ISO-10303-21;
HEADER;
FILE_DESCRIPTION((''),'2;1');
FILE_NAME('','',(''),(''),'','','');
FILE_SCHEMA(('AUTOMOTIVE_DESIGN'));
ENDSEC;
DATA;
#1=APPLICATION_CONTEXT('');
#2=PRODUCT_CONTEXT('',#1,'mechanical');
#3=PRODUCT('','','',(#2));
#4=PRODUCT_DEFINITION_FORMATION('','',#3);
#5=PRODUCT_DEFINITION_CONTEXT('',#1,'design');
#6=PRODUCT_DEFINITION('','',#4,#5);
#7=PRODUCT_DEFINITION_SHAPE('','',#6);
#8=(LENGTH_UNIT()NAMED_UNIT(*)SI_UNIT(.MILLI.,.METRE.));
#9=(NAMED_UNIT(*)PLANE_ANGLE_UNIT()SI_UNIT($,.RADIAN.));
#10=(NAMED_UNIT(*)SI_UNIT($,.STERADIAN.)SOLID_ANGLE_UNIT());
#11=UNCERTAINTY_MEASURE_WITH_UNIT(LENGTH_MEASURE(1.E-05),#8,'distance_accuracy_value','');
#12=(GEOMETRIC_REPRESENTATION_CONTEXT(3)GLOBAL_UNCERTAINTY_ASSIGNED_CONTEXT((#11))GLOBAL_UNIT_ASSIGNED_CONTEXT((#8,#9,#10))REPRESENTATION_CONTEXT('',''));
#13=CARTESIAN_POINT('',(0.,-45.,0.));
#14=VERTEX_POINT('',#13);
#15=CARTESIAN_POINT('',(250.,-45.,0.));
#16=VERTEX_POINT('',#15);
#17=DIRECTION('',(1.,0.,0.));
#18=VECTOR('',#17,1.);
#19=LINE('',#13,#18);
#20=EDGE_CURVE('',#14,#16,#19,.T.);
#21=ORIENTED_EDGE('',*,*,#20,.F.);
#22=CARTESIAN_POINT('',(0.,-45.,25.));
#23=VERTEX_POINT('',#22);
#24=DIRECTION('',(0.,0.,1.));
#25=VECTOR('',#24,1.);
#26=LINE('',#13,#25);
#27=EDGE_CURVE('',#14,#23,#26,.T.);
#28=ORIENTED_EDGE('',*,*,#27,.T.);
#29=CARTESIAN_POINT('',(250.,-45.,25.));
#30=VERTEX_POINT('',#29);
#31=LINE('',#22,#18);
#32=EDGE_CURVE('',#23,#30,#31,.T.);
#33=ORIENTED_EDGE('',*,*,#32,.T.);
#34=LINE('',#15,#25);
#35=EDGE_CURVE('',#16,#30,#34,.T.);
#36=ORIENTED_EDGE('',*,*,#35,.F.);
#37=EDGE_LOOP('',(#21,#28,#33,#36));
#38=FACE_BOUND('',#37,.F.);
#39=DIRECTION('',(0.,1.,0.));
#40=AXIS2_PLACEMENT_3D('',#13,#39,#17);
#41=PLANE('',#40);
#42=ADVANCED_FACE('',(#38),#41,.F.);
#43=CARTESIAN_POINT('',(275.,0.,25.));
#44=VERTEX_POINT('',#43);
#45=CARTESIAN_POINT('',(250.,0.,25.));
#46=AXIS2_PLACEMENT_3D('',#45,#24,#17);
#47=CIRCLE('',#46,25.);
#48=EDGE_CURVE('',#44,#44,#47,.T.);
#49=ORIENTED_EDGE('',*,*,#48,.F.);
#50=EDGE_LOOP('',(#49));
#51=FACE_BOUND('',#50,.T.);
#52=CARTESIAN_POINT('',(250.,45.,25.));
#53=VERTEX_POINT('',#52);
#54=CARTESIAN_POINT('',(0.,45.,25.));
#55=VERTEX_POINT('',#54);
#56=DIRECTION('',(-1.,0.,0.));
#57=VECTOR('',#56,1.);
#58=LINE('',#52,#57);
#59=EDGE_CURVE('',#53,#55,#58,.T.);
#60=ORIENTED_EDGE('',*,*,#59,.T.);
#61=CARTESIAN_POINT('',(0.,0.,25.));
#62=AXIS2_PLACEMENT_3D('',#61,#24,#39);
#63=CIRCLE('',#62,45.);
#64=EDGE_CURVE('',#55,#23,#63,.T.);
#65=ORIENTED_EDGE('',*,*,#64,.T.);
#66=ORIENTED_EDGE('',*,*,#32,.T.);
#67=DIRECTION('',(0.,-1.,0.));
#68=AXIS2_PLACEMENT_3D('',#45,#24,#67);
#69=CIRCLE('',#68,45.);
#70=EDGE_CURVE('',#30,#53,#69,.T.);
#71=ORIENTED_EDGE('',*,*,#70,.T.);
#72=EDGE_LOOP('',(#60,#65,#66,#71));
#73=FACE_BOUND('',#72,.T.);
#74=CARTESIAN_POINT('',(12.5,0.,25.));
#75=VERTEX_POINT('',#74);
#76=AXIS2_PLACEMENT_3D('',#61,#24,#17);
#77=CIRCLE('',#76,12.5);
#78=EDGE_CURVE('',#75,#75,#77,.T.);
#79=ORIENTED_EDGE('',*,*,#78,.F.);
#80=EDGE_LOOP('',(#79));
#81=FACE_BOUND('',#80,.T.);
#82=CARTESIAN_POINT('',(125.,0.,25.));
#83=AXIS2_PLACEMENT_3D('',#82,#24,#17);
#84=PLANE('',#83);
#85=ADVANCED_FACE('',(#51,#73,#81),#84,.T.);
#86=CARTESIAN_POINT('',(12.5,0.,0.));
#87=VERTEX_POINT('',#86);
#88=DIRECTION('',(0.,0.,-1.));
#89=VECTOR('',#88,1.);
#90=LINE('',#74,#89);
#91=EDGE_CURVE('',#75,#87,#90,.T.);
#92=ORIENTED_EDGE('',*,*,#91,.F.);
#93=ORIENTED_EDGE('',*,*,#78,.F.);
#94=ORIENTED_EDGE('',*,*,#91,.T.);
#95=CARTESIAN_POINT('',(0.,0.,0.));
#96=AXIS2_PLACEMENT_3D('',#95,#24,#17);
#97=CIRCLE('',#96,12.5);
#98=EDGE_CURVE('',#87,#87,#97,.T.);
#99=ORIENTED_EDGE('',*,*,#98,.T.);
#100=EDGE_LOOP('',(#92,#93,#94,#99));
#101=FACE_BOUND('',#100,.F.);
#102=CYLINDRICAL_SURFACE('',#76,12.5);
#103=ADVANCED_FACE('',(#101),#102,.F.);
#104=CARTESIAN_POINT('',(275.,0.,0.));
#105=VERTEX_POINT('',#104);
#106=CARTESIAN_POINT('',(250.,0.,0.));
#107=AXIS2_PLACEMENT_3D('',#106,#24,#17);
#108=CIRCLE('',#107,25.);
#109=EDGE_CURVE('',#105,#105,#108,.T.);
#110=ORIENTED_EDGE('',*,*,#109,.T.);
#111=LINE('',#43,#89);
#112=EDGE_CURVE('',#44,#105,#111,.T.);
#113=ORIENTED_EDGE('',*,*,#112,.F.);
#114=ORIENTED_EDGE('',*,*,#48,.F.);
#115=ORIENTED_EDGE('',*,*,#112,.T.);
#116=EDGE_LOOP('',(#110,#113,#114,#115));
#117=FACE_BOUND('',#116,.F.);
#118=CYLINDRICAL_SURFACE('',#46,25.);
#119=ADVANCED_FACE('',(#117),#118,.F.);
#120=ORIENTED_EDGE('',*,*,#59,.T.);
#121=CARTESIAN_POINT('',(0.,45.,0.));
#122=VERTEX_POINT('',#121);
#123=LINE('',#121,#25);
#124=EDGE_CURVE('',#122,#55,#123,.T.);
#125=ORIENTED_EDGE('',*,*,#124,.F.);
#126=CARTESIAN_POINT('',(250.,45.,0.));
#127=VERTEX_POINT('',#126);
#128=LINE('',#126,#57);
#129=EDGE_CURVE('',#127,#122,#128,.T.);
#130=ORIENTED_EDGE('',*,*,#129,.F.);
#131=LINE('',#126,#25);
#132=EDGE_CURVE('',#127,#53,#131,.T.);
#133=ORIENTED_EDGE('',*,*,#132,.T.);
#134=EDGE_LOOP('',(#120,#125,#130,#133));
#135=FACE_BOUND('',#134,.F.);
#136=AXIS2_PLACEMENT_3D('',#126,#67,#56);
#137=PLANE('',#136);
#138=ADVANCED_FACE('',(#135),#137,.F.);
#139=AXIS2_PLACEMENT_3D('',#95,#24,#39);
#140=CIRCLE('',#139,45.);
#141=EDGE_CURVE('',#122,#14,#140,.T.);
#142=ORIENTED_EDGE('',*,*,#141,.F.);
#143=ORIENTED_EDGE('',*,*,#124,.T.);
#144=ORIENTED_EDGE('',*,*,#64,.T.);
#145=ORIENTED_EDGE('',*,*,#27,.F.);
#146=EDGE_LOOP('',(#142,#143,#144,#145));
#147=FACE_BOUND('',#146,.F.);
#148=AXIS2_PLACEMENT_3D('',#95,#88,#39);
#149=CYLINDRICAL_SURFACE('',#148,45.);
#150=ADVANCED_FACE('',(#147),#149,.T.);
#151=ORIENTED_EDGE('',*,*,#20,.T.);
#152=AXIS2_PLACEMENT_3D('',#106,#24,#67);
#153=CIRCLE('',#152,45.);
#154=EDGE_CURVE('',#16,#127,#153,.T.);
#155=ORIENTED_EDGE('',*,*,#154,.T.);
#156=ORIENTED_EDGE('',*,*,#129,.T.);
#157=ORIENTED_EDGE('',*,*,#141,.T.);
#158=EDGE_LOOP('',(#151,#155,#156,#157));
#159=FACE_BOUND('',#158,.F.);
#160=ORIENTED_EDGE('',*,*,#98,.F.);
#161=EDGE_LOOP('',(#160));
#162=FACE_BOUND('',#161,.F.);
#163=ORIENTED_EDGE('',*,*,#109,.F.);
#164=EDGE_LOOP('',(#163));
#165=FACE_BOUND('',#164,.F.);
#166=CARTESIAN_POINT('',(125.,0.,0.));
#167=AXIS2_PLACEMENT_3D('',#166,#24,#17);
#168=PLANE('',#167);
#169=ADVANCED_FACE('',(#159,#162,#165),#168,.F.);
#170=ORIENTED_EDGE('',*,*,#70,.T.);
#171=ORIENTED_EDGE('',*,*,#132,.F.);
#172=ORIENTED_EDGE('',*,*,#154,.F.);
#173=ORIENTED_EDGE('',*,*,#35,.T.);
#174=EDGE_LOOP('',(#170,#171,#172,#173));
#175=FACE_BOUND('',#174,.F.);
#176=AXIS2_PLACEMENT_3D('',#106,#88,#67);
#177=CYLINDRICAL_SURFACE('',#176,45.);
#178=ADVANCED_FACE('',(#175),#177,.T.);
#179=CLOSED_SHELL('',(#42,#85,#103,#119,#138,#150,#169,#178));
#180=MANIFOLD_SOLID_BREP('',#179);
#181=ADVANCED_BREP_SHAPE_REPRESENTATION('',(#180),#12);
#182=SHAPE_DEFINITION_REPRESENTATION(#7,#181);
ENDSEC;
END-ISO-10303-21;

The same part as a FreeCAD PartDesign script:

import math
import FreeCAD as App
import Part
import Sketcher
Q = App.Units.Quantity

doc = App.newDocument("Part")
body = doc.addObject("PartDesign::Body", "Body")

# Sketch on XY plane
sketch1 = body.newObject("Sketcher::SketchObject", "Sketch")
sketch1.AttachmentSupport = (doc.getObject("XY_Plane"), [""])
sketch1.MapMode = "FlatFace"
sketch1.addGeometry(Part.LineSegment(App.Vector(250, 45, 0), App.Vector(0, 45, 0)), False)
sketch1.addGeometry(Part.ArcOfCircle(Part.Circle(App.Vector(0, 0, 0), App.Vector(0, 0, 1), 45), math.radians(90), math.radians(270)), False)
sketch1.addGeometry(Part.LineSegment(App.Vector(0, -45, 0), App.Vector(250, -45, 0)), False)
sketch1.addGeometry(Part.ArcOfCircle(Part.Circle(App.Vector(250, 0, 0), App.Vector(0, 0, 1), 45), math.radians(-90), math.radians(90)), False)
sketch1.addConstraint(Sketcher.Constraint("Tangent", 0, 2, 1, 1))
sketch1.addConstraint(Sketcher.Constraint("Tangent", 1, 2, 2, 1))
sketch1.addConstraint(Sketcher.Constraint("Tangent", 2, 2, 3, 1))
sketch1.addConstraint(Sketcher.Constraint("Tangent", 3, 2, 0, 1))
sketch1.addConstraint(Sketcher.Constraint("Horizontal", 0))
sketch1.addConstraint(Sketcher.Constraint("Horizontal", 2))
sketch1.addConstraint(Sketcher.Constraint("Coincident", 1, 3, -1, 1))
sketch1.addConstraint(Sketcher.Constraint("Radius", 1, Q("45 mm")))
sketch1.addConstraint(Sketcher.Constraint("DistanceX", 0, 2, 0, 1, Q("250 mm")))
pad1 = body.newObject("PartDesign::Pad", "Pad")
pad1.Profile = sketch1
pad1.Length = 25

# Sketch on XY plane
sketch2 = body.newObject("Sketcher::SketchObject", "Sketch001")
sketch2.AttachmentSupport = (doc.getObject("XY_Plane"), [""])
sketch2.MapMode = "FlatFace"
sketch2.AttachmentOffset = App.Placement(App.Vector(0, 0, 25), App.Rotation())
sketch2.addGeometry(Part.Circle(App.Vector(0, 0, 0), App.Vector(0, 0, 1), 12), False)
sketch2.addGeometry(Part.Circle(App.Vector(250, 0, 0), App.Vector(0, 0, 1), 25), False)
sketch2.addConstraint(Sketcher.Constraint("Coincident", 0, 3, -1, 1))
sketch2.addConstraint(Sketcher.Constraint("PointOnObject", 1, 3, -1))
sketch2.addConstraint(Sketcher.Constraint("Diameter", 0, Q("25 mm")))
sketch2.addConstraint(Sketcher.Constraint("Diameter", 1, Q("50 mm")))
sketch2.addConstraint(Sketcher.Constraint("DistanceX", -1, 1, 1, 3, Q("250 mm")))
pocket1 = body.newObject("PartDesign::Pocket", "Pocket")
pocket1.Profile = sketch2
pocket1.Type = "ThroughAll"

doc.recompute()
